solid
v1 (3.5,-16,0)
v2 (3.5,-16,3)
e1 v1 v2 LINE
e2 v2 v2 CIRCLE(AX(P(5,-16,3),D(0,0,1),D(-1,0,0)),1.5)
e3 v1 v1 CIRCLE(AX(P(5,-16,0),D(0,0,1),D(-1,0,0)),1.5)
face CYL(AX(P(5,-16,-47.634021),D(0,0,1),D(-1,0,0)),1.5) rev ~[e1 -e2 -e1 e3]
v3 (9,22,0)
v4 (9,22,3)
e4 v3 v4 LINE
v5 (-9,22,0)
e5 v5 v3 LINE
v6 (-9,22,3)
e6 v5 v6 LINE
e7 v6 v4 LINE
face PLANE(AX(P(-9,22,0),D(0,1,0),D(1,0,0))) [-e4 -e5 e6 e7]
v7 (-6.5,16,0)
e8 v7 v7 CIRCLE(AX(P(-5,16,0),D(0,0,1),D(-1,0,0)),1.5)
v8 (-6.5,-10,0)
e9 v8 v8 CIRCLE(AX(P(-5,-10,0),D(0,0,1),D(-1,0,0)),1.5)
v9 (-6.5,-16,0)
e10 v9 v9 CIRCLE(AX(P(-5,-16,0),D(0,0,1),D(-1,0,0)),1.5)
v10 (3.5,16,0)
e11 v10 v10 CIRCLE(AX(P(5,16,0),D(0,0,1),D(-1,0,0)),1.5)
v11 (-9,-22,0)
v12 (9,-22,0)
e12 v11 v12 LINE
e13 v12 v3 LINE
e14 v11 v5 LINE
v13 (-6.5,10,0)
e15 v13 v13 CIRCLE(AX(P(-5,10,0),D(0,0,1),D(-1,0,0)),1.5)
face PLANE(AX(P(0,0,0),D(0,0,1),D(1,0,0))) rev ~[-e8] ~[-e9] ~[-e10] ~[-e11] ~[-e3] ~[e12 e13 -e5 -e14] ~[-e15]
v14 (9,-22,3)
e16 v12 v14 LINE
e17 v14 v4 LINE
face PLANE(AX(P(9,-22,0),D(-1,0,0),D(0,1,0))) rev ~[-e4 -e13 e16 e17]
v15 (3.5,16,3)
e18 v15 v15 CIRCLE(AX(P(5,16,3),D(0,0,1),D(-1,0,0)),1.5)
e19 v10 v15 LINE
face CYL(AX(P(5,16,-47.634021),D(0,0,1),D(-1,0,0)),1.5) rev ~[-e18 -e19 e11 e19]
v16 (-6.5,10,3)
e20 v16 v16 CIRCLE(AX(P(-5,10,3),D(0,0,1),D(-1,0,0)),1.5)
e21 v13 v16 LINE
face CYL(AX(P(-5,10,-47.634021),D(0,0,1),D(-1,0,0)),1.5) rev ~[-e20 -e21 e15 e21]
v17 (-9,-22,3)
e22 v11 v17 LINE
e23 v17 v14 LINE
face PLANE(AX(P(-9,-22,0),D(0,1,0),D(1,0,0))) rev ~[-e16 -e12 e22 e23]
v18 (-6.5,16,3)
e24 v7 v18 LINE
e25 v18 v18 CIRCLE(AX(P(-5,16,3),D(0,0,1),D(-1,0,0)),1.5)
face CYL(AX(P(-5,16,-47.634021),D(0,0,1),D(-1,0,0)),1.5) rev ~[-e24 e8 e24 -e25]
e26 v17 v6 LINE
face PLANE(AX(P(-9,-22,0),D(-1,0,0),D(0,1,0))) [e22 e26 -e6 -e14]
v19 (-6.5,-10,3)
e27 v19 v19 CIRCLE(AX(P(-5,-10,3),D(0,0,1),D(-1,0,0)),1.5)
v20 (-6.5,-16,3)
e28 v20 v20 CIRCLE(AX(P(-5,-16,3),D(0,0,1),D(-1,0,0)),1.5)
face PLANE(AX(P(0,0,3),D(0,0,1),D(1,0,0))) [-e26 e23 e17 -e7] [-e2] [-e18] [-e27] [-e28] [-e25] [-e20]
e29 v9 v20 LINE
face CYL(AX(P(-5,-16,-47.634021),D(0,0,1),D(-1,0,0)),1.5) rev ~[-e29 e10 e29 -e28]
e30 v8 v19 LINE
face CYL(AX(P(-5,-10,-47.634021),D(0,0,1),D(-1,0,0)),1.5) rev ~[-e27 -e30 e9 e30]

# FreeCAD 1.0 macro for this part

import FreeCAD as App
import Part
import Sketcher
from FreeCAD import Vector
Q = App.Units.Quantity

doc = App.newDocument("Part")
params = doc.addObject("Spreadsheet::Sheet", "Params")
for row, (alias, value) in enumerate([
    ("sketch1_width", "18 mm"),
    ("sketch1_height", "44 mm"),
    ("pad1_length", "3 mm"),
    ("sketch2_diameter", "3 mm"),
    ("hole_diameter", "3 mm"),
], start=1):
    params.set(f"A{row}", alias)
    params.set(f"B{row}", "=" + value)
    params.setAlias(f"B{row}", alias)

body = doc.addObject("PartDesign::Body", "Body")

# Sketch on XY plane
sketch1 = doc.addObject("Sketcher::SketchObject", "Sketch")
body.addObject(sketch1)
sketch1.AttachmentSupport = (doc.XY_Plane, [""])
sketch1.MapMode = "FlatFace"
sketch1.addGeometry([
    Part.LineSegment(Vector(-9, 22, 0), Vector(-9, -22, 0)),
    Part.LineSegment(Vector(-9, -22, 0), Vector(9, -22, 0)),
    Part.LineSegment(Vector(9, -22, 0), Vector(9, 22, 0)),
    Part.LineSegment(Vector(9, 22, 0), Vector(-9, 22, 0)),
], False)
sketch1.addConstraint([
    Sketcher.Constraint("Coincident", 0, 2, 1, 1),
    Sketcher.Constraint("Coincident", 1, 2, 2, 1),
    Sketcher.Constraint("Coincident", 2, 2, 3, 1),
    Sketcher.Constraint("Coincident", 3, 2, 0, 1),
    Sketcher.Constraint("Vertical", 0),
    Sketcher.Constraint("Horizontal", 1),
    Sketcher.Constraint("Vertical", 2),
    Sketcher.Constraint("Horizontal", 3),
    Sketcher.Constraint("Symmetric", 0, 2, 2, 2, -1, 1),
    Sketcher.Constraint("DistanceX", 1, 1, 1, 2, Q("18 mm")),
    Sketcher.Constraint("DistanceY", 0, 2, 0, 1, Q("44 mm")),
])
sketch1.setExpression("Constraints[9]", "Params.sketch1_width")
sketch1.setExpression("Constraints[10]", "Params.sketch1_height")
pad1 = doc.addObject("PartDesign::Pad", "Pad")
body.addObject(pad1)
pad1.Profile = sketch1
pad1.setExpression("Length", "Params.pad1_length")

# Sketch on XY plane
sketch2 = doc.addObject("Sketcher::SketchObject", "Sketch001")
body.addObject(sketch2)
sketch2.AttachmentSupport = (doc.XY_Plane, [""])
sketch2.MapMode = "FlatFace"
sketch2.addGeometry([
    Part.Circle(Vector(-5, 16, 0), Vector(0, 0, 1), 1.5),  # 0
    Part.Circle(Vector(-5, -16, 0), Vector(0, 0, 1), 1.5),  # 1
    Part.Circle(Vector(-5, -10, 0), Vector(0, 0, 1), 1.5),  # 2
    Part.Circle(Vector(-5, 10, 0), Vector(0, 0, 1), 1.5),  # 3
    Part.Circle(Vector(5, 16, 0), Vector(0, 0, 1), 1.5),  # 4
    Part.Circle(Vector(5, -16, 0), Vector(0, 0, 1), 1.5),  # 5
], False)
sketch2.addConstraint([
    Sketcher.Constraint("Equal", 0, 1),
    Sketcher.Constraint("Equal", 1, 2),
    Sketcher.Constraint("Equal", 2, 3),
    Sketcher.Constraint("Equal", 3, 4),
    Sketcher.Constraint("Equal", 4, 5),
    Sketcher.Constraint("Symmetric", 1, 3, 4, 3, -1, 1),
    Sketcher.Constraint("Symmetric", 0, 3, 5, 3, -1, 1),
    Sketcher.Constraint("Symmetric", 0, 3, 4, 3, -2),
    Sketcher.Constraint("Symmetric", 2, 3, 3, 3, -1),
    Sketcher.Constraint("Vertical", 1, 3, 2, 3),
    Sketcher.Constraint("Diameter", 0, Q("3 mm")),
    Sketcher.Constraint("DistanceX", 0, 3, -1, 1, Q("5 mm")),
    Sketcher.Constraint("DistanceY", -1, 1, 0, 3, Q("16 mm")),
    Sketcher.Constraint("DistanceY", 2, 3, -1, 1, Q("10 mm")),
])
sketch2.setExpression("Constraints[10]", "Params.sketch2_diameter")
doc.recompute()
hole = doc.addObject("PartDesign::Hole", "Hole")
body.addObject(hole)
hole.Profile = sketch2
hole.ThreadType = "None"
hole.setExpression("Diameter", "Params.hole_diameter")
hole.DepthType = "ThroughAll"
hole.Reversed = True

doc.recompute()
